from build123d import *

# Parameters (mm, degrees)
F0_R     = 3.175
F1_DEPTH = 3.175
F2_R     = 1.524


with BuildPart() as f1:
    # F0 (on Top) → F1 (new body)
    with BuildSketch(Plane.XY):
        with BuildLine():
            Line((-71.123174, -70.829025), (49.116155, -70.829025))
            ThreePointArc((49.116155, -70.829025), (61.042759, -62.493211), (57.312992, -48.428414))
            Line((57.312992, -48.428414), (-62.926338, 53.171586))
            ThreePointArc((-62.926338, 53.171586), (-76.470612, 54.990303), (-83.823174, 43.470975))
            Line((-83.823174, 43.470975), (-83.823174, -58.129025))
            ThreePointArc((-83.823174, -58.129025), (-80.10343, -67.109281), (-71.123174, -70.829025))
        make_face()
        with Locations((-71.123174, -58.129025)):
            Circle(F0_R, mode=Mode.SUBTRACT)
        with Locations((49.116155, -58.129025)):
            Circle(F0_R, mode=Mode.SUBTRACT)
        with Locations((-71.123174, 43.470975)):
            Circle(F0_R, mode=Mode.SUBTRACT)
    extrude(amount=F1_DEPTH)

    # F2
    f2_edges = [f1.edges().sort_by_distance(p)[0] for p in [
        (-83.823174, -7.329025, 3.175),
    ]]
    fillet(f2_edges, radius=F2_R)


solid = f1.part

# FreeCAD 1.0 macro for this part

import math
import FreeCAD as App
import Part
import Sketcher
Q = App.Units.Quantity


def edges_at(feature, points):
    """Names of the edges that pass closest to the given points."""
    edges = feature.Shape.Edges
    near = lambda p: min(range(len(edges)), key=lambda i: edges[i].distToShape(Part.Vertex(*p))[0])
    return sorted({f"Edge{near(p) + 1}" for p in points})

doc = App.newDocument("Part")
params = doc.addObject("Spreadsheet::Sheet", "Params")
for row, (alias, value) in enumerate([
    ("sketch1_radius", "0.5 in"),
    ("sketch1_diameter", "0.25 in"),
    ("sketch1_height", "4 in"),
    ("pad1_length", "0.125 in"),
    ("fillet_radius", "0.06 in"),
], start=1):
    params.set(f"A{row}", alias)
    params.set(f"B{row}", "=" + value)
    params.setAlias(f"B{row}", alias)

body = doc.addObject("PartDesign::Body", "Body")

sketch1 = doc.addObject("Sketcher::SketchObject", "Sketch")
body.addObject(sketch1)
sketch1.AttachmentSupport = (doc.XY_Plane, [""])
sketch1.MapMode = "FlatFace"
sketch1.addGeometry(Part.LineSegment(App.Vector(-71.123174, -70.829025, 0), App.Vector(49.116155, -70.829025, 0)), False)
sketch1.addGeometry(Part.ArcOfCircle(Part.Circle(App.Vector(49.116155, -58.129025, 0), App.Vector(0, 0, 1), 12.7), math.radians(-90.000002), math.radians(49.80281)), False)
sketch1.addGeometry(Part.LineSegment(App.Vector(57.312992, -48.428414, 0), App.Vector(-62.926338, 53.171586, 0)), False)
sketch1.addGeometry(Part.ArcOfCircle(Part.Circle(App.Vector(-71.123175, 43.470976, 0), App.Vector(0, 0, 1), 12.699999), math.radians(49.802804), math.radians(180.000006)), False)
sketch1.addGeometry(Part.LineSegment(App.Vector(-83.823174, 43.470975, 0), App.Vector(-83.823174, -58.129025, 0)), False)
sketch1.addGeometry(Part.ArcOfCircle(Part.Circle(App.Vector(-71.123174, -58.129025, 0), App.Vector(0, 0, 1), 12.7), math.radians(-179.999998), math.radians(-90.000002)), False)
sketch1.addGeometry(Part.Circle(App.Vector(-71.123174, -58.129025, 0), App.Vector(0, 0, 1), 3.175), False)
sketch1.addGeometry(Part.Circle(App.Vector(49.116155, -58.129025, 0), App.Vector(0, 0, 1), 3.175), False)
sketch1.addGeometry(Part.Circle(App.Vector(-71.123174, 43.470975, 0), App.Vector(0, 0, 1), 3.175), False)
sketch1.addConstraint(Sketcher.Constraint("Tangent", 0, 2, 1, 1))
sketch1.addConstraint(Sketcher.Constraint("Tangent", 1, 2, 2, 1))
sketch1.addConstraint(Sketcher.Constraint("Tangent", 2, 2, 3, 1))
sketch1.addConstraint(Sketcher.Constraint("Tangent", 3, 2, 4, 1))
sketch1.addConstraint(Sketcher.Constraint("Tangent", 4, 2, 5, 1))
sketch1.addConstraint(Sketcher.Constraint("Tangent", 5, 2, 0, 1))
sketch1.addConstraint(Sketcher.Constraint("Horizontal", 0))
sketch1.addConstraint(Sketcher.Constraint("Vertical", 4))
sketch1.addConstraint(Sketcher.Constraint("Coincident", 6, 3, 5, 3))
sketch1.addConstraint(Sketcher.Constraint("Coincident", 7, 3, 1, 3))
sketch1.addConstraint(Sketcher.Constraint("Coincident", 8, 3, 3, 3))
sketch1.addConstraint(Sketcher.Constraint("Equal", 1, 3))
sketch1.addConstraint(Sketcher.Constraint("Equal", 3, 5))
sketch1.addConstraint(Sketcher.Constraint("Equal", 6, 7))
sketch1.addConstraint(Sketcher.Constraint("Equal", 7, 8))
sketch1.addConstraint(Sketcher.Constraint("Radius", 1, Q("0.5 in")))
sketch1.addConstraint(Sketcher.Constraint("Diameter", 6, Q("0.25 in")))
sketch1.addConstraint(Sketcher.Constraint("DistanceY", 4, 2, 4, 1, Q("4 in")))
sketch1.addConstraint(Sketcher.Constraint("DistanceX", 0, 1, 0, 2, 120.239329))
sketch1.addConstraint(Sketcher.Constraint("DistanceX", -1, 1, 1, 3, 49.116155))
sketch1.addConstraint(Sketcher.Constraint("DistanceY", 1, 3, -1, 1, 58.129025))
sketch1.setExpression("Constraints[15]", "Params.sketch1_radius")
sketch1.setExpression("Constraints[16]", "Params.sketch1_diameter")
sketch1.setExpression("Constraints[17]", "Params.sketch1_height")
pad1 = doc.addObject("PartDesign::Pad", "Pad")
body.addObject(pad1)
pad1.Profile = sketch1
pad1.setExpression("Length", "Params.pad1_length")
doc.recompute()

fillet = doc.addObject("PartDesign::Fillet", "Fillet")
body.addObject(fillet)
fillet.Base = (pad1, edges_at(pad1, [(-83.823, -7.329, 3.175)]))
fillet.setExpression("Radius", "Params.fillet_radius")

doc.recompute()
